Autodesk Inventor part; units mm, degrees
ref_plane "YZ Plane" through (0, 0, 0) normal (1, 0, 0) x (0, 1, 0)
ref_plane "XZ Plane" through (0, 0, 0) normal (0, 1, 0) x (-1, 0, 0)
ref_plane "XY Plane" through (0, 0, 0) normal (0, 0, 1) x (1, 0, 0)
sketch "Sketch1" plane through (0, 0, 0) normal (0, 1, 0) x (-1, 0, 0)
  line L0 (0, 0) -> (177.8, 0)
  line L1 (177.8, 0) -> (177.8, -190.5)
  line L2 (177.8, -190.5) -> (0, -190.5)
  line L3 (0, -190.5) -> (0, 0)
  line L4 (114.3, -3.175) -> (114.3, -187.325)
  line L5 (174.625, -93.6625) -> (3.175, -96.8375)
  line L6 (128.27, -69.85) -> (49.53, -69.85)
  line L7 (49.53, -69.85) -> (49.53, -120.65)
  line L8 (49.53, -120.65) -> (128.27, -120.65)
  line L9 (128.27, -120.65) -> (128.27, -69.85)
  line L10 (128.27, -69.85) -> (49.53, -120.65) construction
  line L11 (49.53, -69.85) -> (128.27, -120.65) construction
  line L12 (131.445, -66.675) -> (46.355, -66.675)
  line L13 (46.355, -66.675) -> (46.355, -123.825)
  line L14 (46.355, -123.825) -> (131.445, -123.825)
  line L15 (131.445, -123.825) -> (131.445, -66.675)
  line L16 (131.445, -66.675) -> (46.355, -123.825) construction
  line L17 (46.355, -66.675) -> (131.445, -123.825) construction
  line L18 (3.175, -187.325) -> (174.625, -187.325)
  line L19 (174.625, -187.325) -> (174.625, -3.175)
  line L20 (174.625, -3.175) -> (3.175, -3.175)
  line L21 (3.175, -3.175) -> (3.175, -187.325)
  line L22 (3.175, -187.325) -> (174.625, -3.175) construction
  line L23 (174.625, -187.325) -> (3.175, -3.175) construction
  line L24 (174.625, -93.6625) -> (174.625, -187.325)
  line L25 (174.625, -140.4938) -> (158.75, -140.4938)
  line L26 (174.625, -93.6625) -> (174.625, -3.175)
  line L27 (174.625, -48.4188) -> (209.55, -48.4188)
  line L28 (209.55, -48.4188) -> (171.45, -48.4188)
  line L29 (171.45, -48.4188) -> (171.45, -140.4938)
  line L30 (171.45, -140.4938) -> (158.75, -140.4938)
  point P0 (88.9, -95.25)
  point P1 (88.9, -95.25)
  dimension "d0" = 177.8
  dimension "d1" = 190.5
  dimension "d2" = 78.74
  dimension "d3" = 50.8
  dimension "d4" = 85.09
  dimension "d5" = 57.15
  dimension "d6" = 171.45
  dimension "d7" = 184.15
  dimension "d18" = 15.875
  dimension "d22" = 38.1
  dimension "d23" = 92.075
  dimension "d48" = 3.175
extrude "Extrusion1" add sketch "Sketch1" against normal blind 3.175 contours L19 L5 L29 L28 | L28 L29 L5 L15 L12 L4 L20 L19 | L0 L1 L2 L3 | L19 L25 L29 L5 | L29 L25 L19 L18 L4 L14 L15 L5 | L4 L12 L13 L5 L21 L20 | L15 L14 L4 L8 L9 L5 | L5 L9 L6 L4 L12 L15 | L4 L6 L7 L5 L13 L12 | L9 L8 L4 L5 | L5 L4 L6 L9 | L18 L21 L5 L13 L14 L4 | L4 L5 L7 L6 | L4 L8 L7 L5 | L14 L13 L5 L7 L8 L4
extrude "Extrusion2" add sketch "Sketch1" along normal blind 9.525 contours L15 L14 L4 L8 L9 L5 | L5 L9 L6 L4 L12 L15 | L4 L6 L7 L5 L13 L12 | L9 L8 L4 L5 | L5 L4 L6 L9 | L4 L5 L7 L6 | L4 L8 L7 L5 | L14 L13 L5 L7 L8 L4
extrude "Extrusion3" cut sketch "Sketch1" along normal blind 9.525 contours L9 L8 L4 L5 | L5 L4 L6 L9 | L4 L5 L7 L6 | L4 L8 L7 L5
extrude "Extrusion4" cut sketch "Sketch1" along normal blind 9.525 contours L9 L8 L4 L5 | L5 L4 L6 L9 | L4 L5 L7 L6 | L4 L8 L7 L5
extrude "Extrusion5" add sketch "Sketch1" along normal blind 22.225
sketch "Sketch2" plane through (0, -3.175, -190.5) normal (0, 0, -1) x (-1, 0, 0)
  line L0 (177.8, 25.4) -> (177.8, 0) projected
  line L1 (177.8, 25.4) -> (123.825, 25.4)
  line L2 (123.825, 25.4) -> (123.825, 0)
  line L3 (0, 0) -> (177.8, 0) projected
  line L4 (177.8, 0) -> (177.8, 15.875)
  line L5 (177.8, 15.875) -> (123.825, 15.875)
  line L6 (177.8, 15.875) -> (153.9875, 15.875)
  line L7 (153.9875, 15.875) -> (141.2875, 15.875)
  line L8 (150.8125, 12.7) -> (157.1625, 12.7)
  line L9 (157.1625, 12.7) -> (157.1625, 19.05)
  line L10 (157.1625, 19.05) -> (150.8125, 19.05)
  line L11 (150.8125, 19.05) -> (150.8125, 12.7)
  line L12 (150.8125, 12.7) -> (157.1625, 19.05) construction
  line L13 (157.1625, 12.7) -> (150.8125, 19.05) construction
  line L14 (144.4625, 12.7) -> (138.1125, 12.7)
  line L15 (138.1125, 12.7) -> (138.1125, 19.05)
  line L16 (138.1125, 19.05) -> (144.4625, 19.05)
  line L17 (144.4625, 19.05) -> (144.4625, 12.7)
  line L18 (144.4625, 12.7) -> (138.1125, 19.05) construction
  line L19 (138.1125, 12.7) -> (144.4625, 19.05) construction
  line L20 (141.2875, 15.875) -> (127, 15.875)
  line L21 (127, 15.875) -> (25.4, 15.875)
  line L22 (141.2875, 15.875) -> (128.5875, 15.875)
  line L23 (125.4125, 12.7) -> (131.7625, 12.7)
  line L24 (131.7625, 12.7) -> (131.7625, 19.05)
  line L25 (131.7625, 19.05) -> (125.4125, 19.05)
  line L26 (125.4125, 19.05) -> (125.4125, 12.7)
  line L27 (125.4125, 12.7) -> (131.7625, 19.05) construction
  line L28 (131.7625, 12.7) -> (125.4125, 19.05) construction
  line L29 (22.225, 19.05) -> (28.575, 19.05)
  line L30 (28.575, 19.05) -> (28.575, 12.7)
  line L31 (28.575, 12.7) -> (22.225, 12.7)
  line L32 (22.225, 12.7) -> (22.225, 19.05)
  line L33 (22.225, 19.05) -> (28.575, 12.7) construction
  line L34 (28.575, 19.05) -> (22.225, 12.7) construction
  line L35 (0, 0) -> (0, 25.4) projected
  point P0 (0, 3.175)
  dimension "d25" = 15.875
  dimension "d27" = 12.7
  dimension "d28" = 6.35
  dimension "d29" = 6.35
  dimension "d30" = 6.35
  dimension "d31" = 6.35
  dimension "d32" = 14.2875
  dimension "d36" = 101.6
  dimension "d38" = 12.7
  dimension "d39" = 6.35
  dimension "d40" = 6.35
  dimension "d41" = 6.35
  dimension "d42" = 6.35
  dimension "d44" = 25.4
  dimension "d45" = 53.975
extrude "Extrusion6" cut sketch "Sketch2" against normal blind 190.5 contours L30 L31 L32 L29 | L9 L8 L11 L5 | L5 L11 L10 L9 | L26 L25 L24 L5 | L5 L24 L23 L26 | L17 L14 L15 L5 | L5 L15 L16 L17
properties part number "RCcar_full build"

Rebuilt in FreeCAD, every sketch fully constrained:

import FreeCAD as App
import Part
import Sketcher

V = App.Vector
Q = App.Units.Quantity


def add_polygon(sketch, points):
    """Adds a closed chain of lines whose ends are joined by coincident constraints."""
    first, n = sketch.GeometryCount, len(points)
    for a, b in zip(points, points[1:] + points[:1]):
        sketch.addGeometry(Part.LineSegment(App.Vector(*a, 0), App.Vector(*b, 0)), False)
    for i in range(n):
        sketch.addConstraint(Sketcher.Constraint("Coincident", first + i, 2, first + (i + 1) % n, 1))

doc = App.newDocument("Part")
body = doc.addObject("PartDesign::Body", "Body")

sketch1 = body.newObject("Sketcher::SketchObject", "Sketch")
sketch1.AttachmentSupport = (doc.getObject("XZ_Plane"), [""])
sketch1.MapMode = "FlatFace"
add_polygon(sketch1, [(-178, 0), (0, 0), (0, -190), (-178, -190), (-178, -48)])
sketch1.addConstraint([
    Sketcher.Constraint("Horizontal", 0),
    Sketcher.Constraint("Vertical", 1),
    Sketcher.Constraint("Horizontal", 2),
    Sketcher.Constraint("Vertical", 3),
    Sketcher.Constraint("Vertical", 4),
    Sketcher.Constraint("Coincident", 0, 2, -1, 1),
    Sketcher.Constraint("DistanceX", 0, 1, 0, 2, Q("7 in")),
    Sketcher.Constraint("DistanceY", 1, 2, 1, 1, Q("7.5 in")),
    Sketcher.Constraint("DistanceY", 3, 1, 3, 2, Q("5.593748 in")),
])
pad1 = body.newObject("PartDesign::Pad", "Pad")
pad1.Profile = sketch1
pad1.Length = Q("0.125 in")

sketch2 = body.newObject("Sketcher::SketchObject", "Sketch001")
sketch2.AttachmentSupport = (doc.getObject("XZ_Plane"), [""])
sketch2.MapMode = "FlatFace"
add_polygon(sketch2, [(-131, -124), (-131, -67), (-46, -67), (-46, -124)])
sketch2.addConstraint([
    Sketcher.Constraint("Vertical", 0),
    Sketcher.Constraint("Horizontal", 1),
    Sketcher.Constraint("Vertical", 2),
    Sketcher.Constraint("Horizontal", 3),
    Sketcher.Constraint("DistanceX", 1, 1, 1, 2, Q("3.35 in")),
    Sketcher.Constraint("DistanceY", 0, 1, 0, 2, Q("2.25 in")),
    Sketcher.Constraint("DistanceX", 0, 2, -1, 1, Q("5.175 in")),
    Sketcher.Constraint("DistanceY", 0, 2, -1, 1, Q("2.625 in")),
])
pad2 = body.newObject("PartDesign::Pad", "Pad001")
pad2.Profile = sketch2
pad2.Length = Q("0.375 in")
pad2.Reversed = True

sketch3 = body.newObject("Sketcher::SketchObject", "Sketch002")
sketch3.AttachmentSupport = (doc.getObject("XZ_Plane"), [""])
sketch3.MapMode = "FlatFace"
add_polygon(sketch3, [(-128, -121), (-128, -70), (-50, -70), (-50, -121)])
sketch3.addConstraint([
    Sketcher.Constraint("Vertical", 0),
    Sketcher.Constraint("Horizontal", 1),
    Sketcher.Constraint("Vertical", 2),
    Sketcher.Constraint("Horizontal", 3),
    Sketcher.Constraint("DistanceY", 0, 1, 0, 2, Q("2 in")),
    Sketcher.Constraint("DistanceX", 1, 1, 1, 2, Q("3.1 in")),
    Sketcher.Constraint("DistanceX", 0, 2, -1, 1, Q("5.05 in")),
    Sketcher.Constraint("DistanceY", 0, 2, -1, 1, Q("2.75 in")),
])
pocket1 = body.newObject("PartDesign::Pocket", "Pocket")
pocket1.Profile = sketch3
pocket1.Length = Q("0.375 in")

sketch4 = body.newObject("Sketcher::SketchObject", "Sketch003")
sketch4.AttachmentSupport = (doc.getObject("XZ_Plane"), [""])
sketch4.MapMode = "FlatFace"
add_polygon(sketch4, [(-128, -121), (-128, -70), (-50, -70), (-50, -121)])
sketch4.addConstraint([
    Sketcher.Constraint("Vertical", 0),
    Sketcher.Constraint("Horizontal", 1),
    Sketcher.Constraint("Vertical", 2),
    Sketcher.Constraint("Horizontal", 3),
    Sketcher.Constraint("DistanceY", 0, 1, 0, 2, Q("2 in")),
    Sketcher.Constraint("DistanceX", 1, 1, 1, 2, Q("3.1 in")),
    Sketcher.Constraint("DistanceX", 0, 2, -1, 1, Q("5.05 in")),
    Sketcher.Constraint("DistanceY", 0, 2, -1, 1, Q("2.75 in")),
])
pocket2 = body.newObject("PartDesign::Pocket", "Pocket001")
pocket2.Profile = sketch4
pocket2.Length = Q("0.375 in")

sketch5 = body.newObject("Sketcher::SketchObject", "Sketch004")
sketch5.AttachmentSupport = (doc.getObject("XZ_Plane"), [""])
sketch5.MapMode = "FlatFace"
add_polygon(sketch5, [(-178, 0), (0, 0), (0, -190), (-178, -190), (-178, -48)])
add_polygon(sketch5, [(-175, -3), (-175, -48), (-175, -187), (-3, -187), (-3, -3)])
sketch5.addConstraint([
    Sketcher.Constraint("Horizontal", 0),
    Sketcher.Constraint("Vertical", 1),
    Sketcher.Constraint("Horizontal", 2),
    Sketcher.Constraint("Vertical", 3),
    Sketcher.Constraint("Vertical", 4),
    Sketcher.Constraint("Vertical", 5),
    Sketcher.Constraint("Vertical", 6),
    Sketcher.Constraint("Horizontal", 7),
    Sketcher.Constraint("Vertical", 8),
    Sketcher.Constraint("Horizontal", 9),
    Sketcher.Constraint("Coincident", 0, 2, -1, 1),
    Sketcher.Constraint("Horizontal", 3, 2, 5, 2),
    Sketcher.Constraint("DistanceX", 0, 1, 0, 2, Q("7 in")),
    Sketcher.Constraint("DistanceY", 1, 2, 1, 1, Q("7.5 in")),
    Sketcher.Constraint("DistanceX", 7, 1, 7, 2, Q("6.75 in")),
    Sketcher.Constraint("DistanceY", 8, 1, 8, 2, Q("7.25 in")),
    Sketcher.Constraint("DistanceX", 7, 2, -1, 1, Q("0.125 in")),
    Sketcher.Constraint("DistanceY", 8, 2, -1, 1, Q("0.125 in")),
    Sketcher.Constraint("DistanceY", 3, 1, 3, 2, Q("5.593748 in")),
])
pad3 = body.newObject("PartDesign::Pad", "Pad002")
pad3.Profile = sketch5
pad3.Length = Q("0.875 in")
pad3.Reversed = True

sketch6 = body.newObject("Sketcher::SketchObject", "Sketch005")
sketch6.AttachmentSupport = (doc.getObject("XY_Plane"), [""])
sketch6.MapMode = "FlatFace"
sketch6.AttachmentOffset = App.Placement(V(0, 0, -7.5 * 25.4), App.Rotation())
add_polygon(sketch6, [(-29, 10), (-29, 16), (-22, 16), (-22, 10)])
add_polygon(sketch6, [(-157, 10), (-157, 16), (-151, 16), (-151, 10)])
add_polygon(sketch6, [(-125, 16), (-125, 10), (-132, 10), (-132, 16)])
add_polygon(sketch6, [(-144, 10), (-144, 16), (-138, 16), (-138, 10)])
sketch6.addConstraint([
    Sketcher.Constraint("Vertical", 0),
    Sketcher.Constraint("Horizontal", 1),
    Sketcher.Constraint("Vertical", 2),
    Sketcher.Constraint("Horizontal", 3),
    Sketcher.Constraint("Vertical", 4),
    Sketcher.Constraint("Horizontal", 5),
    Sketcher.Constraint("Vertical", 6),
    Sketcher.Constraint("Horizontal", 7),
    Sketcher.Constraint("Vertical", 8),
    Sketcher.Constraint("Horizontal", 9),
    Sketcher.Constraint("Vertical", 10),
    Sketcher.Constraint("Horizontal", 11),
    Sketcher.Constraint("Vertical", 12),
    Sketcher.Constraint("Horizontal", 13),
    Sketcher.Constraint("Vertical", 14),
    Sketcher.Constraint("Horizontal", 15),
    Sketcher.Constraint("Horizontal", 1, 2, 4, 2),
    Sketcher.Constraint("Horizontal", 3, 2, 6, 2),
    Sketcher.Constraint("Horizontal", 7, 2, 8, 2),
    Sketcher.Constraint("Horizontal", 5, 2, 10, 2),
    Sketcher.Constraint("Horizontal", 11, 2, 12, 2),
    Sketcher.Constraint("Horizontal", 9, 2, 14, 2),
    Sketcher.Constraint("Equal", 3, 5),
    Sketcher.Constraint("Equal", 7, 9),
    Sketcher.Constraint("Equal", 11, 13),
    Sketcher.Constraint("Equal", 15, 0),
    Sketcher.Constraint("DistanceX", 6, 2, 8, 2, Q("1 in")),
    Sketcher.Constraint("DistanceX", 1, 1, 1, 2, Q("0.25 in")),
    Sketcher.Constraint("DistanceX", 4, 2, 12, 2, Q("0.5 in")),
    Sketcher.Constraint("DistanceY", -1, 1, 0, 2, Q("0.625 in")),
    Sketcher.Constraint("DistanceX", 0, 2, -1, 1, Q("1.125 in")),
    Sketcher.Constraint("DistanceX", 4, 2, -1, 1, Q("6.1875 in")),
])
pocket3 = body.newObject("PartDesign::Pocket", "Pocket002")
pocket3.Profile = sketch6
pocket3.Length = Q("7.5 in")
pocket3.Reversed = True

doc.recompute()
